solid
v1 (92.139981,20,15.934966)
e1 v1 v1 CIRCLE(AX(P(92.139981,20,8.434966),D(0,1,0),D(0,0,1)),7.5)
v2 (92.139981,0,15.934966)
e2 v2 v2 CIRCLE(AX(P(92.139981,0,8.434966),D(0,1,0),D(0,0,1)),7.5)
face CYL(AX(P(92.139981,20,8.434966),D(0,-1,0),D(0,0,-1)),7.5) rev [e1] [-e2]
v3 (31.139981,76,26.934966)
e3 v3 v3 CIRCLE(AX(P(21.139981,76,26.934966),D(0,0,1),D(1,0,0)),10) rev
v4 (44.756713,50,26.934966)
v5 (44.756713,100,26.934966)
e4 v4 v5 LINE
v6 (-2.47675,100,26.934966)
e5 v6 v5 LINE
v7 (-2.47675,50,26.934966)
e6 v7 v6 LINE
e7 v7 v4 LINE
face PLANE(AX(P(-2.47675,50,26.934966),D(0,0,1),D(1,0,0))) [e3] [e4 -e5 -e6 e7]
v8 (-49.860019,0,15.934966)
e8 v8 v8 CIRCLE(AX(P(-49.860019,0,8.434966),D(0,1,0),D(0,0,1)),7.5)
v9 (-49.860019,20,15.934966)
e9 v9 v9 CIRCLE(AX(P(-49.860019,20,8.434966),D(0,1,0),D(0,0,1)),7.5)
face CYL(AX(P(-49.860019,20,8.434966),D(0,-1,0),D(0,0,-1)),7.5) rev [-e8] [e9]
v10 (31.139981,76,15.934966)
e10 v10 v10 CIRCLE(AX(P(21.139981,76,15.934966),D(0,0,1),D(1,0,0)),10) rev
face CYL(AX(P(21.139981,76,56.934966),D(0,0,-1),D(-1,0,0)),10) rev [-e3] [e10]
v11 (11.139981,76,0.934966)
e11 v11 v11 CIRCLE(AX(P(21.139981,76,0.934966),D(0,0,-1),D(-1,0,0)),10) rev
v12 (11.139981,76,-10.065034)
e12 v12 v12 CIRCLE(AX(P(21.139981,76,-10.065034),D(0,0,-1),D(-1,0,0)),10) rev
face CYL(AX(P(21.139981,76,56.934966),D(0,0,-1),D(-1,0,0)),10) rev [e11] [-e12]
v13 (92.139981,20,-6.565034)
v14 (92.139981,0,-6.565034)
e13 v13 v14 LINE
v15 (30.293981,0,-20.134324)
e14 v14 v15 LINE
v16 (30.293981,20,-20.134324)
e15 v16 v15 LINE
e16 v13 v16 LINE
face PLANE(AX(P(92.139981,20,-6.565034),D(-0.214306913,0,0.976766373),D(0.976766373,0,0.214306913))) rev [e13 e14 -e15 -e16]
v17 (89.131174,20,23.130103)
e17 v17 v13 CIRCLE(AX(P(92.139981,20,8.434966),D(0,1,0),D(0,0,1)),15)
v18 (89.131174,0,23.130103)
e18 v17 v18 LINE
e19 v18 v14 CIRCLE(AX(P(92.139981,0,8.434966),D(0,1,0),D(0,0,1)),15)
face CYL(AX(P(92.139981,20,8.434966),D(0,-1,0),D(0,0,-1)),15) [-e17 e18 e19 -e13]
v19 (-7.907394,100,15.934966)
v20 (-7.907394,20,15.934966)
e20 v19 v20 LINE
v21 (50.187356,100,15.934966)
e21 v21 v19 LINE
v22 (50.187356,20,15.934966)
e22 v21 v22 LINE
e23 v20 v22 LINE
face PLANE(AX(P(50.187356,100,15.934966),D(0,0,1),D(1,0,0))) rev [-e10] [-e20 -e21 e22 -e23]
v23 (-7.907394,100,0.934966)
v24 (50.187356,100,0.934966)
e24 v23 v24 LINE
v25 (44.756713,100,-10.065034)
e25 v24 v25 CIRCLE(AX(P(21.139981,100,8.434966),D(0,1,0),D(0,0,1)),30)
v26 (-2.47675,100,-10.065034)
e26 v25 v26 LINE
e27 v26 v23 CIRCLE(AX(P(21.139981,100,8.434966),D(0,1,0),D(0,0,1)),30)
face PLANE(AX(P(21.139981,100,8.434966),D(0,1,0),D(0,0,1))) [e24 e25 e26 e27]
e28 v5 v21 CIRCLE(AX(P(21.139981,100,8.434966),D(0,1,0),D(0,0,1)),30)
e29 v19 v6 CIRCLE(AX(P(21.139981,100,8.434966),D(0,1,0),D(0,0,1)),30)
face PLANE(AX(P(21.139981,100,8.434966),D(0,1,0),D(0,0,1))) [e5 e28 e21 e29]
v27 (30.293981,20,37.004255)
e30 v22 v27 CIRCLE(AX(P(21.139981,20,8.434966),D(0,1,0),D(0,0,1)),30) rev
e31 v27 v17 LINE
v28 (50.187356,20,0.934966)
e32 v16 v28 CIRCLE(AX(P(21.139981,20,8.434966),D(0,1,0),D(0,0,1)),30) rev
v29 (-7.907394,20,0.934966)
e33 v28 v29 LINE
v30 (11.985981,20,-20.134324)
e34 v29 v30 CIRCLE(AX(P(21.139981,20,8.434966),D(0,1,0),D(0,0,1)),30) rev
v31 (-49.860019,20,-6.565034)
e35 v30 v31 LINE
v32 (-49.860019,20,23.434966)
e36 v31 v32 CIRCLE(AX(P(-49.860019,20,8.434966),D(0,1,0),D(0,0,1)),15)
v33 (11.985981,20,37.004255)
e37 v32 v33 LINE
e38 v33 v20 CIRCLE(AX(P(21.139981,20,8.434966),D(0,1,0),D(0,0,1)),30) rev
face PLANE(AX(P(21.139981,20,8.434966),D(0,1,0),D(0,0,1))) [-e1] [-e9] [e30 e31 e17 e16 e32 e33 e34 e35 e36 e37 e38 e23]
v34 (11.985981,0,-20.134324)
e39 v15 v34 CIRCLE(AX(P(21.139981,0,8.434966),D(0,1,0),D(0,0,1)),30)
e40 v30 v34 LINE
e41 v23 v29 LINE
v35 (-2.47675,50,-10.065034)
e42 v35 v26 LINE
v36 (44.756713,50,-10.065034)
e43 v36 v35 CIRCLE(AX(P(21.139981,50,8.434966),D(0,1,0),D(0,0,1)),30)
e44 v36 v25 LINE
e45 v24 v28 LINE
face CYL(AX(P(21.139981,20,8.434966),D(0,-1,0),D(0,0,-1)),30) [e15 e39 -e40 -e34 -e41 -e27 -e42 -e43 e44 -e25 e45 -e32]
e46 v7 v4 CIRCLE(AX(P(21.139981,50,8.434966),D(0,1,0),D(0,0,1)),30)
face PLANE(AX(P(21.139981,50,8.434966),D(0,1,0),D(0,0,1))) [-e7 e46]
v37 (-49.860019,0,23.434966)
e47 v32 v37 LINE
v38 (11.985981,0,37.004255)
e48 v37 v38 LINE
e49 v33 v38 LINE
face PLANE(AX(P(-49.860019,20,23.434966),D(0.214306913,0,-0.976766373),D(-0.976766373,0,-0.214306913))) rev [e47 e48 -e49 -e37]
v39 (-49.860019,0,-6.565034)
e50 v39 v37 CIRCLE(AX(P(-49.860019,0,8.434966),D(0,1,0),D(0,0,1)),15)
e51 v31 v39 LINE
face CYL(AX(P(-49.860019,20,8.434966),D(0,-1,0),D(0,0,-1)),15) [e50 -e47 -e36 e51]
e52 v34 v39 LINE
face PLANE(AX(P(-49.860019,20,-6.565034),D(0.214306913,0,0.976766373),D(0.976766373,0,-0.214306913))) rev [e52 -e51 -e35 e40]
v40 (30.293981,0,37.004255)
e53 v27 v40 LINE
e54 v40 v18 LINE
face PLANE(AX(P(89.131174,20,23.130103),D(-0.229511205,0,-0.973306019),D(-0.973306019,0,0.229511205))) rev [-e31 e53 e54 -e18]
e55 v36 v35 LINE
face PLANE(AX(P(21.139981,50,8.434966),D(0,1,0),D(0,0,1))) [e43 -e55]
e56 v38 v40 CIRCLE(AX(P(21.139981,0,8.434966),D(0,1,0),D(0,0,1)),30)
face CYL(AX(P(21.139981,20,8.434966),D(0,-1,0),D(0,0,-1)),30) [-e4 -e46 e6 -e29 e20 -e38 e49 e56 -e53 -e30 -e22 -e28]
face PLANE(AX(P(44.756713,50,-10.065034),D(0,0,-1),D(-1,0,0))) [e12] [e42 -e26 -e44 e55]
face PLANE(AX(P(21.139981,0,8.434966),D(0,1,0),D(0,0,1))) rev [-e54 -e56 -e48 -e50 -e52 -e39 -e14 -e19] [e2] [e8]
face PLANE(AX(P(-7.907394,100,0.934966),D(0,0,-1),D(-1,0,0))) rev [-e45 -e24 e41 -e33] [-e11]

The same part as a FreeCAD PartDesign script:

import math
import FreeCAD as App
import Part
import Sketcher
Q = App.Units.Quantity

doc = App.newDocument("Part")
body = doc.addObject("PartDesign::Body", "Body")

sketch1 = doc.addObject("Sketcher::SketchObject", "Sketch")
body.addObject(sketch1)
sketch1.AttachmentSupport = (doc.XZ_Plane, [""])
sketch1.MapMode = "FlatFace"
sketch1.addGeometry([
    Part.LineSegment(App.Vector(-50, 23, 0), App.Vector(12, 37, 0)),
    Part.ArcOfCircle(Part.Circle(App.Vector(21, 8, 0), App.Vector(0, 0, 1), 30), math.radians(72), math.radians(108)),
    Part.LineSegment(App.Vector(30, 37, 0), App.Vector(89, 23, 0)),
    Part.ArcOfCircle(Part.Circle(App.Vector(92, 8, 0), App.Vector(0, 0, 1), 15), math.radians(-90), math.radians(102)),
    Part.LineSegment(App.Vector(92, -7, 0), App.Vector(30, -20, 0)),
    Part.ArcOfCircle(Part.Circle(App.Vector(21, 8, 0), App.Vector(0, 0, 1), 30), math.radians(-108), math.radians(-72)),
    Part.LineSegment(App.Vector(12, -20, 0), App.Vector(-50, -7, 0)),
    Part.ArcOfCircle(Part.Circle(App.Vector(-50, 8, 0), App.Vector(0, 0, 1), 15), math.radians(90), math.radians(270)),
    Part.Circle(App.Vector(-50, 8, 0), App.Vector(0, 0, 1), 8),
    Part.Circle(App.Vector(92, 8, 0), App.Vector(0, 0, 1), 8),
], False)
sketch1.addConstraint([
    Sketcher.Constraint("Coincident", 0, 2, 1, 2),
    Sketcher.Constraint("Coincident", 1, 1, 2, 1),
    Sketcher.Constraint("Coincident", 2, 2, 3, 2),
    Sketcher.Constraint("Coincident", 3, 1, 4, 1),
    Sketcher.Constraint("Coincident", 4, 2, 5, 2),
    Sketcher.Constraint("Coincident", 5, 1, 6, 1),
    Sketcher.Constraint("Coincident", 6, 2, 7, 2),
    Sketcher.Constraint("Coincident", 7, 1, 0, 1),
    Sketcher.Constraint("Coincident", 5, 3, 1, 3),
    Sketcher.Constraint("Coincident", 8, 3, 7, 3),
    Sketcher.Constraint("Coincident", 9, 3, 3, 3),
    Sketcher.Constraint("Equal", 1, 5),
    Sketcher.Constraint("Equal", 3, 7),
    Sketcher.Constraint("Equal", 8, 9),
    Sketcher.Constraint("Parallel", 0, 4),
    Sketcher.Constraint("Horizontal", 1, 3, 3, 3),
    Sketcher.Constraint("Horizontal", 5, 3, 7, 3),
    Sketcher.Constraint("Horizontal", 0, 2, 1, 1),
    Sketcher.Constraint("Horizontal", 4, 2, 5, 1),
    Sketcher.Constraint("Vertical", 9, 3, 3, 1),
    Sketcher.Constraint("Vertical", 1, 1, 4, 2),
    Sketcher.Constraint("Vertical", 8, 3, 6, 2),
    Sketcher.Constraint("Vertical", 6, 2, 7, 1),
    Sketcher.Constraint("Diameter", 8, Q("15 mm")),
    Sketcher.Constraint("Radius", 1, Q("30 mm")),
    Sketcher.Constraint("Radius", 3, Q("15 mm")),
    Sketcher.Constraint("DistanceX", 1, 3, 3, 3, Q("71 mm")),
    Sketcher.Constraint("DistanceX", 0, 2, 5, 3, Q("9.154 mm")),
    Sketcher.Constraint("DistanceX", -1, 1, 1, 3, Q("21.139981 mm")),
    Sketcher.Constraint("DistanceY", 2, 2, 1, 1, Q("13.874151 mm")),
    Sketcher.Constraint("DistanceY", -1, 1, 1, 3, Q("8.434966 mm")),
])
pad1 = doc.addObject("PartDesign::Pad", "Pad")
body.addObject(pad1)
pad1.Profile = sketch1
pad1.Length = 20
pad1.Reversed = True

sketch2 = doc.addObject("Sketcher::SketchObject", "Sketch001")
body.addObject(sketch2)
sketch2.AttachmentSupport = (doc.XZ_Plane, [""])
sketch2.MapMode = "FlatFace"
sketch2.addGeometry([
    Part.LineSegment(App.Vector(-8, 1, 0), App.Vector(50, 1, 0)),
    Part.ArcOfCircle(Part.Circle(App.Vector(21, 8, 0), App.Vector(0, 0, 1), 30), math.radians(-166), math.radians(-14)),
    Part.LineSegment(App.Vector(50, 16, 0), App.Vector(-8, 16, 0)),
    Part.ArcOfCircle(Part.Circle(App.Vector(21, 8, 0), App.Vector(0, 0, 1), 30), math.radians(14), math.radians(166)),
], False)
sketch2.addConstraint([
    Sketcher.Constraint("Coincident", 0, 1, 1, 1),
    Sketcher.Constraint("Coincident", 1, 2, 0, 2),
    Sketcher.Constraint("Coincident", 2, 1, 3, 1),
    Sketcher.Constraint("Coincident", 3, 2, 2, 2),
    Sketcher.Constraint("Horizontal", 0),
    Sketcher.Constraint("Horizontal", 2),
    Sketcher.Constraint("Coincident", 3, 3, 1, 3),
    Sketcher.Constraint("Equal", 1, 3),
    Sketcher.Constraint("Vertical", 1, 2, 2, 1),
    Sketcher.Constraint("Radius", 1, Q("30 mm")),
    Sketcher.Constraint("DistanceY", 1, 2, 2, 1, Q("15 mm")),
    Sketcher.Constraint("DistanceX", -1, 1, 1, 3, Q("21.139981 mm")),
    Sketcher.Constraint("DistanceY", -1, 1, 1, 3, Q("8.434966 mm")),
])
pad2 = doc.addObject("PartDesign::Pad", "Pad001")
body.addObject(pad2)
pad2.Profile = sketch2
pad2.Length = 100
pad2.Reversed = True

sketch3 = doc.addObject("Sketcher::SketchObject", "Sketch002")
body.addObject(sketch3)
sketch3.AttachmentSupport = (doc.XZ_Plane, [""])
sketch3.MapMode = "FlatFace"
sketch3.AttachmentOffset = App.Placement(App.Vector(0, 0, -100), App.Rotation())
sketch3.addGeometry([
    Part.LineSegment(App.Vector(45, 27, 0), App.Vector(-2, 27, 0)),
    Part.ArcOfCircle(Part.Circle(App.Vector(21, 8, 0), App.Vector(0, 0, 1), 30), math.radians(38), math.radians(142)),
    Part.LineSegment(App.Vector(-2, -10, 0), App.Vector(45, -10, 0)),
    Part.ArcOfCircle(Part.Circle(App.Vector(21, 8, 0), App.Vector(0, 0, 1), 30), math.radians(-142), math.radians(-38)),
], False)
sketch3.addConstraint([
    Sketcher.Constraint("Coincident", 0, 1, 1, 1),
    Sketcher.Constraint("Coincident", 1, 2, 0, 2),
    Sketcher.Constraint("Coincident", 2, 1, 3, 1),
    Sketcher.Constraint("Coincident", 3, 2, 2, 2),
    Sketcher.Constraint("Horizontal", 0),
    Sketcher.Constraint("Horizontal", 2),
    Sketcher.Constraint("Coincident", 3, 3, 1, 3),
    Sketcher.Constraint("Equal", 1, 3),
    Sketcher.Constraint("Vertical", 1, 2, 2, 1),
    Sketcher.Constraint("Radius", 1, Q("30 mm")),
    Sketcher.Constraint("DistanceY", 2, 1, 1, 2, Q("37 mm")),
    Sketcher.Constraint("DistanceX", -1, 1, 1, 3, Q("21.139981 mm")),
    Sketcher.Constraint("DistanceY", -1, 1, 1, 3, Q("8.434966 mm")),
])
pocket1 = doc.addObject("PartDesign::Pocket", "Pocket")
body.addObject(pocket1)
pocket1.Profile = sketch3
pocket1.Length = 50
pocket1.Reversed = True

sketch4 = doc.addObject("Sketcher::SketchObject", "Sketch003")
body.addObject(sketch4)
sketch4.AttachmentSupport = (doc.XY_Plane, [""])
sketch4.MapMode = "FlatFace"
sketch4.AttachmentOffset = App.Placement(App.Vector(0, 0, 26.934966), App.Rotation())
sketch4.addGeometry(Part.Circle(App.Vector(21, 76, 0), App.Vector(0, 0, 1), 10), False)
sketch4.addConstraint([
    Sketcher.Constraint("Diameter", 0, Q("20 mm")),
    Sketcher.Constraint("DistanceY", -1, 1, 0, 3, Q("76 mm")),
    Sketcher.Constraint("DistanceX", -1, 1, 0, 3, Q("21.139981 mm")),
])
pocket2 = doc.addObject("PartDesign::Pocket", "Pocket001")
body.addObject(pocket2)
pocket2.Profile = sketch4
pocket2.Type = "ThroughAll"
pocket2.Midplane = True

doc.recompute()
